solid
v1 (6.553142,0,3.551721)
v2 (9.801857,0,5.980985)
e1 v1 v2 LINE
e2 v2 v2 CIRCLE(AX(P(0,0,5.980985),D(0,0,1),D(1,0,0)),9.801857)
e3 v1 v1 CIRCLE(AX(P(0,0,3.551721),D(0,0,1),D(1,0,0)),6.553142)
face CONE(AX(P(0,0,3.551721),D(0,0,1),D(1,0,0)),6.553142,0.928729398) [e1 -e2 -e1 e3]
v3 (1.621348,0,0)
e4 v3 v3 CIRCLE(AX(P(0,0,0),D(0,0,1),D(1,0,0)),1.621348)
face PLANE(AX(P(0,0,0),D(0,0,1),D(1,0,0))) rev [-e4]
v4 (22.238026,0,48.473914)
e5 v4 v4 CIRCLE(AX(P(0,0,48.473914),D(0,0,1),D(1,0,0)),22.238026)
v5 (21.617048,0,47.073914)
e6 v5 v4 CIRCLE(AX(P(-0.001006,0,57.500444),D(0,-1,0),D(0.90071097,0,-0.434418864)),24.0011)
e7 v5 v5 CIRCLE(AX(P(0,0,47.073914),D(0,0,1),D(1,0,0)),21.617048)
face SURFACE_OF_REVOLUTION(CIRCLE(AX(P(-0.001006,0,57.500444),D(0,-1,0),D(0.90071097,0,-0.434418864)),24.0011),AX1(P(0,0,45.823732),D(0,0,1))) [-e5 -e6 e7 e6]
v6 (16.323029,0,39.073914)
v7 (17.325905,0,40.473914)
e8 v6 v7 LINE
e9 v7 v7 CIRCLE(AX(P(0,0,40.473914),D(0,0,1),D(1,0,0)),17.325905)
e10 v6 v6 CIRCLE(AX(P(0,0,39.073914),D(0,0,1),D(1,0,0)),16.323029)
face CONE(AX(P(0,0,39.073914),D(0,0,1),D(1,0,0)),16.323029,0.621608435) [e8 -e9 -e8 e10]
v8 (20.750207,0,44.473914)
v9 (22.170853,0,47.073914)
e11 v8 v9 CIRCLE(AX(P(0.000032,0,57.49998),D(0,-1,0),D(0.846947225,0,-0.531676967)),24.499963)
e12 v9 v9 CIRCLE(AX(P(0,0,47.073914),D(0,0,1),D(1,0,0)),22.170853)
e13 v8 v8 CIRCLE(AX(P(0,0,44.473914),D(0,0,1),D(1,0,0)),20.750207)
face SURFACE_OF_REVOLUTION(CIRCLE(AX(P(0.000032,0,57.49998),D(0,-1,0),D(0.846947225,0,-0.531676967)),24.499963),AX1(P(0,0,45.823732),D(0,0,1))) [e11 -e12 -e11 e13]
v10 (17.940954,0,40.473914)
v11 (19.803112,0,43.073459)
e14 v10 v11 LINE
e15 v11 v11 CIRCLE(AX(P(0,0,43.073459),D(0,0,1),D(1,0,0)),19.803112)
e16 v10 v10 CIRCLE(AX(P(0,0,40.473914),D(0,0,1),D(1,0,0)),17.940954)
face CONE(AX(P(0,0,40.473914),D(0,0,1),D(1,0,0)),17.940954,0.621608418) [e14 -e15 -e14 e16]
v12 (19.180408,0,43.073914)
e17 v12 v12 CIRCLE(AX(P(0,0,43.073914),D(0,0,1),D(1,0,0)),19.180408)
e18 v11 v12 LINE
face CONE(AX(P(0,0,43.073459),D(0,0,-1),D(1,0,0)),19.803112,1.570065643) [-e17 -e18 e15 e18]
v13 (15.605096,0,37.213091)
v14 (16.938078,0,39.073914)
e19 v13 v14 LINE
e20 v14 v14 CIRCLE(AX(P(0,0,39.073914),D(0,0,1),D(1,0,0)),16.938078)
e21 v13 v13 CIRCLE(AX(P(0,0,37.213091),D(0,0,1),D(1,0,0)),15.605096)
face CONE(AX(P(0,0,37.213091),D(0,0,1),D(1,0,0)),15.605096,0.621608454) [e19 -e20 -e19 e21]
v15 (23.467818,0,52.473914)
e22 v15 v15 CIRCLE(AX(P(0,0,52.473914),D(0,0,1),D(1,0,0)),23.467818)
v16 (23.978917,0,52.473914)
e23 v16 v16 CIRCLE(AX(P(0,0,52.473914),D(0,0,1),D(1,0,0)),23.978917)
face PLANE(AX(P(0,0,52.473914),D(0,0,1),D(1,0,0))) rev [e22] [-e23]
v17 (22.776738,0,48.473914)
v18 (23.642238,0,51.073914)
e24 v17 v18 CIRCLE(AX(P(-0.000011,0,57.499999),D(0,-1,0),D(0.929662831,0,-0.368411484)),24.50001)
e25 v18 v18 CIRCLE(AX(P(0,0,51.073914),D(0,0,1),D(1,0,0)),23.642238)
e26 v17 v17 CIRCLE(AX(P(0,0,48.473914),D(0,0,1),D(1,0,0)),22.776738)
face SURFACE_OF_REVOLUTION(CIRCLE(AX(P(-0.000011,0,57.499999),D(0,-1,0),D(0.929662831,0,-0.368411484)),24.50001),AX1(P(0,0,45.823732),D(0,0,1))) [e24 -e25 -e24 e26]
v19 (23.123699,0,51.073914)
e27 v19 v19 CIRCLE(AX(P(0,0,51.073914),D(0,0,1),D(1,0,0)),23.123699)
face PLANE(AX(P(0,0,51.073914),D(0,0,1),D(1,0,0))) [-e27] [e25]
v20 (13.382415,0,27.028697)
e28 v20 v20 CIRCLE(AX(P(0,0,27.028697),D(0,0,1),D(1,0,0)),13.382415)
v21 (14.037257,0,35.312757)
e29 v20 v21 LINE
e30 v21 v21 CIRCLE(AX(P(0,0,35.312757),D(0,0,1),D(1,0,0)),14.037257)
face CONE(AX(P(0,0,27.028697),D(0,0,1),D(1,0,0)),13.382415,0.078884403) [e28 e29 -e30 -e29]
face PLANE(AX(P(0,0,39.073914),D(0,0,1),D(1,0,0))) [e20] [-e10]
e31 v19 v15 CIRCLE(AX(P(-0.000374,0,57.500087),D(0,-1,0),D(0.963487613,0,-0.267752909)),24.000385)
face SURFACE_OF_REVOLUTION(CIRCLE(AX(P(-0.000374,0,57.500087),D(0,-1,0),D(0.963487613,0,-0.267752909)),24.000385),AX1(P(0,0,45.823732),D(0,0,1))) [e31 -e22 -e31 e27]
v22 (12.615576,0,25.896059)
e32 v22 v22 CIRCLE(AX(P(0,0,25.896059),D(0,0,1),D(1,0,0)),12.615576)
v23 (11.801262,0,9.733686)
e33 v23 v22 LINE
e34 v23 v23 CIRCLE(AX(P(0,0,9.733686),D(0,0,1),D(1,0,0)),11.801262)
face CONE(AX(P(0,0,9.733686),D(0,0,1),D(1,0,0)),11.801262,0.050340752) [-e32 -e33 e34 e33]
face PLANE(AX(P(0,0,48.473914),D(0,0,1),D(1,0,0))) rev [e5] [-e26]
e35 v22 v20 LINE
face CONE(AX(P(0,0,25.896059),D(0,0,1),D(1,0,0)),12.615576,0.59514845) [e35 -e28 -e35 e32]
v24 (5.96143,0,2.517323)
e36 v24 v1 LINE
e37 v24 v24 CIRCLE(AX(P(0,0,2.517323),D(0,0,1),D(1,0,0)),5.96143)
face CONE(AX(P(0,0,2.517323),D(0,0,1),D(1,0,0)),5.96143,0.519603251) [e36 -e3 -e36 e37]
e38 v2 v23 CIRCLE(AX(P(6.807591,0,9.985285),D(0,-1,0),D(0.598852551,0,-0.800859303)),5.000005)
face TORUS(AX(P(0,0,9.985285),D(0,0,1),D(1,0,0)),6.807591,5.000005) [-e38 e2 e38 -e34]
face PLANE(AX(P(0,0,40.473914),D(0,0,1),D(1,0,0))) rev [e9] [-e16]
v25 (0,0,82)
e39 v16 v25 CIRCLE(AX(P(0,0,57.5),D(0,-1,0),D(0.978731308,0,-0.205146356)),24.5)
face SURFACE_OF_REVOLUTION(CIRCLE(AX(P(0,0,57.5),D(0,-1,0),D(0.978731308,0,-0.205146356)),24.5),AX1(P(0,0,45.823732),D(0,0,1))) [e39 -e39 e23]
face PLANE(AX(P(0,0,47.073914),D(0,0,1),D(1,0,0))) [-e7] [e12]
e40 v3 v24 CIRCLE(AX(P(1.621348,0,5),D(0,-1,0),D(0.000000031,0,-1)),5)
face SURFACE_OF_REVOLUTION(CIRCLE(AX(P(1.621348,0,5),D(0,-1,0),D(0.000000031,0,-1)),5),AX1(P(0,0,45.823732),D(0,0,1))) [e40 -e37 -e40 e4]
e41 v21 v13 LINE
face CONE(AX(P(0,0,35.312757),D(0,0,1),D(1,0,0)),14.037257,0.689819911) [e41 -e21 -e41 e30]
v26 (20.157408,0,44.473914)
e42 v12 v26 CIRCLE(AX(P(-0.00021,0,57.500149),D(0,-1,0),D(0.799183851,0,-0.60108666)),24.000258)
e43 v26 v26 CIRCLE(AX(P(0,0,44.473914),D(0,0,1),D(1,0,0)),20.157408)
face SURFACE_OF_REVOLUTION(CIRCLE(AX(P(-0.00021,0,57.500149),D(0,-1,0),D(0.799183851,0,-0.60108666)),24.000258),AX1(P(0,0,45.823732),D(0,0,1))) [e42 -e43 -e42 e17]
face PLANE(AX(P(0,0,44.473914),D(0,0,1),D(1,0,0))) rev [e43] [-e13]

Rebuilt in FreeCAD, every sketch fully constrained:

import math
import FreeCAD as App
import Part
import Sketcher

doc = App.newDocument("Part")
body = doc.addObject("PartDesign::Body", "Body")

# Sketch on XZ plane
sketch1 = body.newObject("Sketcher::SketchObject", "Sketch")
sketch1.AttachmentSupport = (doc.getObject("XZ_Plane"), [""])
sketch1.MapMode = "FlatFace"
sketch1.addGeometry([
    Part.LineSegment(App.Vector(0, 82, 0), App.Vector(0, 0, 0)),  # 0
    Part.LineSegment(App.Vector(0, 0, 0), App.Vector(1.6, 0, 0)),  # 1
    Part.ArcOfCircle(Part.Circle(App.Vector(1.6, 5, 0), App.Vector(0, 0, 1), 5), math.radians(-90), math.radians(-30)),  # 2
    Part.LineSegment(App.Vector(6, 2.5, 0), App.Vector(6.6, 3.6, 0)),  # 3
    Part.LineSegment(App.Vector(6.6, 3.6, 0), App.Vector(9.8, 6, 0)),  # 4
    Part.ArcOfCircle(Part.Circle(App.Vector(6.8, 10, 0), App.Vector(0, 0, 1), 5), math.radians(-53), math.radians(-3)),  # 5
    Part.LineSegment(App.Vector(11.8, 9.7, 0), App.Vector(12.6, 25.9, 0)),  # 6
    Part.LineSegment(App.Vector(12.6, 25.9, 0), App.Vector(13.4, 27, 0)),  # 7
    Part.LineSegment(App.Vector(13.4, 27, 0), App.Vector(14, 35.3, 0)),  # 8
    Part.LineSegment(App.Vector(14, 35.3, 0), App.Vector(15.6, 37.2, 0)),  # 9
    Part.LineSegment(App.Vector(15.6, 37.2, 0), App.Vector(16.9, 39.1, 0)),  # 10
    Part.LineSegment(App.Vector(16.9, 39.1, 0), App.Vector(16.3, 39.1, 0)),  # 11
    Part.LineSegment(App.Vector(16.3, 39.1, 0), App.Vector(17.3, 40.5, 0)),  # 12
    Part.LineSegment(App.Vector(17.3, 40.5, 0), App.Vector(17.9, 40.5, 0)),  # 13
    Part.LineSegment(App.Vector(17.9, 40.5, 0), App.Vector(19.8, 43.1, 0)),  # 14
    Part.LineSegment(App.Vector(19.8, 43.1, 0), App.Vector(19.2, 43.1, 0)),  # 15
    Part.ArcOfCircle(Part.Circle(App.Vector(0, 57.5, 0), App.Vector(0, 0, 1), 24), math.radians(-36.95), math.radians(-32.87)),  # 16
    Part.LineSegment(App.Vector(20.2, 44.5, 0), App.Vector(20.8, 44.5, 0)),  # 17
    Part.ArcOfCircle(Part.Circle(App.Vector(0, 57.5, 0), App.Vector(0, 0, 1), 24.5), math.radians(-32.12), math.radians(-25.19)),  # 18
    Part.LineSegment(App.Vector(22.2, 47.1, 0), App.Vector(21.6, 47.1, 0)),  # 19
    Part.ArcOfCircle(Part.Circle(App.Vector(0, 57.5, 0), App.Vector(0, 0, 1), 24), math.radians(-25.75), math.radians(-22.09)),  # 20
    Part.LineSegment(App.Vector(22.2, 48.5, 0), App.Vector(22.8, 48.5, 0)),  # 21
    Part.ArcOfCircle(Part.Circle(App.Vector(0, 57.5, 0), App.Vector(0, 0, 1), 24.5), math.radians(-21.62), math.radians(-15.21)),  # 22
    Part.LineSegment(App.Vector(23.6, 51.1, 0), App.Vector(23.1, 51.1, 0)),  # 23
    Part.ArcOfCircle(Part.Circle(App.Vector(0, 57.5, 0), App.Vector(0, 0, 1), 24), math.radians(-15.53), math.radians(-12.09)),  # 24
    Part.LineSegment(App.Vector(23.5, 52.5, 0), App.Vector(24, 52.5, 0)),  # 25
    Part.ArcOfCircle(Part.Circle(App.Vector(0, 57.5, 0), App.Vector(0, 0, 1), 24.5), math.radians(-12), math.radians(90)),  # 26
], False)
sketch1.addConstraint([
    Sketcher.Constraint("Coincident", 0, 2, 1, 1),
    Sketcher.Constraint("Tangent", 1, 2, 2, 1),
    Sketcher.Constraint("Tangent", 2, 2, 3, 1),
    Sketcher.Constraint("Coincident", 3, 2, 4, 1),
    Sketcher.Constraint("Tangent", 4, 2, 5, 1),
    Sketcher.Constraint("Tangent", 5, 2, 6, 1),
    Sketcher.Constraint("Coincident", 6, 2, 7, 1),
    Sketcher.Constraint("Coincident", 7, 2, 8, 1),
    Sketcher.Constraint("Coincident", 8, 2, 9, 1),
    Sketcher.Constraint("Coincident", 9, 2, 10, 1),
    Sketcher.Constraint("Coincident", 10, 2, 11, 1),
    Sketcher.Constraint("Coincident", 11, 2, 12, 1),
    Sketcher.Constraint("Coincident", 12, 2, 13, 1),
    Sketcher.Constraint("Coincident", 13, 2, 14, 1),
    Sketcher.Constraint("Coincident", 14, 2, 15, 1),
    Sketcher.Constraint("Coincident", 15, 2, 16, 1),
    Sketcher.Constraint("Coincident", 16, 2, 17, 1),
    Sketcher.Constraint("Coincident", 17, 2, 18, 1),
    Sketcher.Constraint("Coincident", 18, 2, 19, 1),
    Sketcher.Constraint("Coincident", 19, 2, 20, 1),
    Sketcher.Constraint("Coincident", 20, 2, 21, 1),
    Sketcher.Constraint("Coincident", 21, 2, 22, 1),
    Sketcher.Constraint("Coincident", 22, 2, 23, 1),
    Sketcher.Constraint("Coincident", 23, 2, 24, 1),
    Sketcher.Constraint("Coincident", 24, 2, 25, 1),
    Sketcher.Constraint("Coincident", 25, 2, 26, 1),
    Sketcher.Constraint("Coincident", 26, 2, 0, 1),
    Sketcher.Constraint("Vertical", 0),
    Sketcher.Constraint("Horizontal", 1),
    Sketcher.Constraint("Horizontal", 11),
    Sketcher.Constraint("Horizontal", 13),
    Sketcher.Constraint("Horizontal", 17),
    Sketcher.Constraint("Horizontal", 19),
    Sketcher.Constraint("Horizontal", 21),
    Sketcher.Constraint("Horizontal", 23),
    Sketcher.Constraint("Horizontal", 25),
    Sketcher.Constraint("Coincident", 0, 2, -1, 1),
    Sketcher.Constraint("PointOnObject", 26, 3, -2),
    Sketcher.Constraint("Parallel", 10, 12),
    Sketcher.Constraint("Parallel", 12, 14),
    Sketcher.Constraint("Horizontal", 22, 3, 26, 3),
    Sketcher.Constraint("Equal", 11, 13),
    Sketcher.Constraint("Radius", 2, 5.0),
    Sketcher.Constraint("Radius", 26, 24.5),
    Sketcher.Constraint("DistanceY", 0, 2, 0, 1, 82.0),
    Sketcher.Constraint("DistanceY", 10, 2, 15, 2, 4.0),
    Sketcher.Constraint("DistanceY", 13, 2, 16, 2, 4.0),
    Sketcher.Constraint("DistanceY", 15, 2, 18, 2, 4.0),
    Sketcher.Constraint("DistanceY", 17, 2, 20, 2, 4.0),
    Sketcher.Constraint("DistanceY", 18, 2, 22, 2, 4.0),
    Sketcher.Constraint("DistanceY", 21, 2, 24, 2, 4.0),
    Sketcher.Constraint("Radius", 20, 24.0011),
    Sketcher.Constraint("DistanceY", 10, 2, 12, 2, 1.4),
    Sketcher.Constraint("Radius", 22, 24.50001),
    Sketcher.Constraint("DistanceX", 17, 1, 17, 2, 0.592799),
    Sketcher.Constraint("DistanceX", 25, 1, 25, 2, 0.511099),
    Sketcher.Constraint("Radius", 5, 5.000005),
    Sketcher.Constraint("Radius", 16, 24.000258),
    Sketcher.Constraint("Radius", 18, 24.499963),
    Sketcher.Constraint("Radius", 24, 24.000385),
    Sketcher.Constraint("DistanceX", 15, 2, 16, 2, 0.977),
    Sketcher.Constraint("Distance", 8, 8.309902),
    Sketcher.Constraint("DistanceX", 11, 2, 11, 1, 0.615049),
    Sketcher.Constraint("DistanceX", 23, 2, 23, 1, 0.518539),
    Sketcher.Constraint("DistanceX", -1, 1, 23, 2, 23.123699),
    Sketcher.Constraint("DistanceX", 16, 3, 5, 3, 6.807802),
    Sketcher.Constraint("DistanceX", 16, 3, 22, 3, 0.0002),
    Sketcher.Constraint("DistanceY", 5, 3, 24, 3, 47.514801),
    Sketcher.Constraint("DistanceX", 18, 3, 2, 2, 5.961398),
    Sketcher.Constraint("DistanceY", 2, 2, 3, 2, 1.034398),
    Sketcher.Constraint("DistanceY", 4, 2, 5, 3, 4.0043),
    Sketcher.Constraint("DistanceY", 4, 2, 5, 2, 3.752701),
    Sketcher.Constraint("DistanceX", 13, 2, 18, 2, 4.229899),
    Sketcher.Constraint("Distance", 3, 1.19168),
    Sketcher.Constraint("Distance", 12, 1.722138),
    Sketcher.Constraint("DistanceX", 1, 1, 1, 2, 1.621348),
    Sketcher.Constraint("DistanceX", 19, 2, 19, 1, 0.553805),
    Sketcher.Constraint("DistanceX", 21, 1, 21, 2, 0.538712),
    Sketcher.Constraint("DistanceY", -1, 1, 6, 2, 25.896059),
    Sketcher.Constraint("DistanceY", -1, 1, 9, 2, 37.213091),
    Sketcher.Constraint("DistanceX", -1, 1, 14, 2, 19.803112),
    Sketcher.Constraint("DistanceX", 6, 2, 7, 2, 0.766839),
    Sketcher.Constraint("DistanceY", 5, 2, 7, 2, 17.295011),
    Sketcher.Constraint("DistanceY", 7, 2, 8, 2, 8.28406),
])
revolution = body.newObject("PartDesign::Revolution", "Revolution")
revolution.Profile = sketch1
revolution.ReferenceAxis = (sketch1, ["V_Axis"])
revolution.Angle = 360

doc.recompute()
